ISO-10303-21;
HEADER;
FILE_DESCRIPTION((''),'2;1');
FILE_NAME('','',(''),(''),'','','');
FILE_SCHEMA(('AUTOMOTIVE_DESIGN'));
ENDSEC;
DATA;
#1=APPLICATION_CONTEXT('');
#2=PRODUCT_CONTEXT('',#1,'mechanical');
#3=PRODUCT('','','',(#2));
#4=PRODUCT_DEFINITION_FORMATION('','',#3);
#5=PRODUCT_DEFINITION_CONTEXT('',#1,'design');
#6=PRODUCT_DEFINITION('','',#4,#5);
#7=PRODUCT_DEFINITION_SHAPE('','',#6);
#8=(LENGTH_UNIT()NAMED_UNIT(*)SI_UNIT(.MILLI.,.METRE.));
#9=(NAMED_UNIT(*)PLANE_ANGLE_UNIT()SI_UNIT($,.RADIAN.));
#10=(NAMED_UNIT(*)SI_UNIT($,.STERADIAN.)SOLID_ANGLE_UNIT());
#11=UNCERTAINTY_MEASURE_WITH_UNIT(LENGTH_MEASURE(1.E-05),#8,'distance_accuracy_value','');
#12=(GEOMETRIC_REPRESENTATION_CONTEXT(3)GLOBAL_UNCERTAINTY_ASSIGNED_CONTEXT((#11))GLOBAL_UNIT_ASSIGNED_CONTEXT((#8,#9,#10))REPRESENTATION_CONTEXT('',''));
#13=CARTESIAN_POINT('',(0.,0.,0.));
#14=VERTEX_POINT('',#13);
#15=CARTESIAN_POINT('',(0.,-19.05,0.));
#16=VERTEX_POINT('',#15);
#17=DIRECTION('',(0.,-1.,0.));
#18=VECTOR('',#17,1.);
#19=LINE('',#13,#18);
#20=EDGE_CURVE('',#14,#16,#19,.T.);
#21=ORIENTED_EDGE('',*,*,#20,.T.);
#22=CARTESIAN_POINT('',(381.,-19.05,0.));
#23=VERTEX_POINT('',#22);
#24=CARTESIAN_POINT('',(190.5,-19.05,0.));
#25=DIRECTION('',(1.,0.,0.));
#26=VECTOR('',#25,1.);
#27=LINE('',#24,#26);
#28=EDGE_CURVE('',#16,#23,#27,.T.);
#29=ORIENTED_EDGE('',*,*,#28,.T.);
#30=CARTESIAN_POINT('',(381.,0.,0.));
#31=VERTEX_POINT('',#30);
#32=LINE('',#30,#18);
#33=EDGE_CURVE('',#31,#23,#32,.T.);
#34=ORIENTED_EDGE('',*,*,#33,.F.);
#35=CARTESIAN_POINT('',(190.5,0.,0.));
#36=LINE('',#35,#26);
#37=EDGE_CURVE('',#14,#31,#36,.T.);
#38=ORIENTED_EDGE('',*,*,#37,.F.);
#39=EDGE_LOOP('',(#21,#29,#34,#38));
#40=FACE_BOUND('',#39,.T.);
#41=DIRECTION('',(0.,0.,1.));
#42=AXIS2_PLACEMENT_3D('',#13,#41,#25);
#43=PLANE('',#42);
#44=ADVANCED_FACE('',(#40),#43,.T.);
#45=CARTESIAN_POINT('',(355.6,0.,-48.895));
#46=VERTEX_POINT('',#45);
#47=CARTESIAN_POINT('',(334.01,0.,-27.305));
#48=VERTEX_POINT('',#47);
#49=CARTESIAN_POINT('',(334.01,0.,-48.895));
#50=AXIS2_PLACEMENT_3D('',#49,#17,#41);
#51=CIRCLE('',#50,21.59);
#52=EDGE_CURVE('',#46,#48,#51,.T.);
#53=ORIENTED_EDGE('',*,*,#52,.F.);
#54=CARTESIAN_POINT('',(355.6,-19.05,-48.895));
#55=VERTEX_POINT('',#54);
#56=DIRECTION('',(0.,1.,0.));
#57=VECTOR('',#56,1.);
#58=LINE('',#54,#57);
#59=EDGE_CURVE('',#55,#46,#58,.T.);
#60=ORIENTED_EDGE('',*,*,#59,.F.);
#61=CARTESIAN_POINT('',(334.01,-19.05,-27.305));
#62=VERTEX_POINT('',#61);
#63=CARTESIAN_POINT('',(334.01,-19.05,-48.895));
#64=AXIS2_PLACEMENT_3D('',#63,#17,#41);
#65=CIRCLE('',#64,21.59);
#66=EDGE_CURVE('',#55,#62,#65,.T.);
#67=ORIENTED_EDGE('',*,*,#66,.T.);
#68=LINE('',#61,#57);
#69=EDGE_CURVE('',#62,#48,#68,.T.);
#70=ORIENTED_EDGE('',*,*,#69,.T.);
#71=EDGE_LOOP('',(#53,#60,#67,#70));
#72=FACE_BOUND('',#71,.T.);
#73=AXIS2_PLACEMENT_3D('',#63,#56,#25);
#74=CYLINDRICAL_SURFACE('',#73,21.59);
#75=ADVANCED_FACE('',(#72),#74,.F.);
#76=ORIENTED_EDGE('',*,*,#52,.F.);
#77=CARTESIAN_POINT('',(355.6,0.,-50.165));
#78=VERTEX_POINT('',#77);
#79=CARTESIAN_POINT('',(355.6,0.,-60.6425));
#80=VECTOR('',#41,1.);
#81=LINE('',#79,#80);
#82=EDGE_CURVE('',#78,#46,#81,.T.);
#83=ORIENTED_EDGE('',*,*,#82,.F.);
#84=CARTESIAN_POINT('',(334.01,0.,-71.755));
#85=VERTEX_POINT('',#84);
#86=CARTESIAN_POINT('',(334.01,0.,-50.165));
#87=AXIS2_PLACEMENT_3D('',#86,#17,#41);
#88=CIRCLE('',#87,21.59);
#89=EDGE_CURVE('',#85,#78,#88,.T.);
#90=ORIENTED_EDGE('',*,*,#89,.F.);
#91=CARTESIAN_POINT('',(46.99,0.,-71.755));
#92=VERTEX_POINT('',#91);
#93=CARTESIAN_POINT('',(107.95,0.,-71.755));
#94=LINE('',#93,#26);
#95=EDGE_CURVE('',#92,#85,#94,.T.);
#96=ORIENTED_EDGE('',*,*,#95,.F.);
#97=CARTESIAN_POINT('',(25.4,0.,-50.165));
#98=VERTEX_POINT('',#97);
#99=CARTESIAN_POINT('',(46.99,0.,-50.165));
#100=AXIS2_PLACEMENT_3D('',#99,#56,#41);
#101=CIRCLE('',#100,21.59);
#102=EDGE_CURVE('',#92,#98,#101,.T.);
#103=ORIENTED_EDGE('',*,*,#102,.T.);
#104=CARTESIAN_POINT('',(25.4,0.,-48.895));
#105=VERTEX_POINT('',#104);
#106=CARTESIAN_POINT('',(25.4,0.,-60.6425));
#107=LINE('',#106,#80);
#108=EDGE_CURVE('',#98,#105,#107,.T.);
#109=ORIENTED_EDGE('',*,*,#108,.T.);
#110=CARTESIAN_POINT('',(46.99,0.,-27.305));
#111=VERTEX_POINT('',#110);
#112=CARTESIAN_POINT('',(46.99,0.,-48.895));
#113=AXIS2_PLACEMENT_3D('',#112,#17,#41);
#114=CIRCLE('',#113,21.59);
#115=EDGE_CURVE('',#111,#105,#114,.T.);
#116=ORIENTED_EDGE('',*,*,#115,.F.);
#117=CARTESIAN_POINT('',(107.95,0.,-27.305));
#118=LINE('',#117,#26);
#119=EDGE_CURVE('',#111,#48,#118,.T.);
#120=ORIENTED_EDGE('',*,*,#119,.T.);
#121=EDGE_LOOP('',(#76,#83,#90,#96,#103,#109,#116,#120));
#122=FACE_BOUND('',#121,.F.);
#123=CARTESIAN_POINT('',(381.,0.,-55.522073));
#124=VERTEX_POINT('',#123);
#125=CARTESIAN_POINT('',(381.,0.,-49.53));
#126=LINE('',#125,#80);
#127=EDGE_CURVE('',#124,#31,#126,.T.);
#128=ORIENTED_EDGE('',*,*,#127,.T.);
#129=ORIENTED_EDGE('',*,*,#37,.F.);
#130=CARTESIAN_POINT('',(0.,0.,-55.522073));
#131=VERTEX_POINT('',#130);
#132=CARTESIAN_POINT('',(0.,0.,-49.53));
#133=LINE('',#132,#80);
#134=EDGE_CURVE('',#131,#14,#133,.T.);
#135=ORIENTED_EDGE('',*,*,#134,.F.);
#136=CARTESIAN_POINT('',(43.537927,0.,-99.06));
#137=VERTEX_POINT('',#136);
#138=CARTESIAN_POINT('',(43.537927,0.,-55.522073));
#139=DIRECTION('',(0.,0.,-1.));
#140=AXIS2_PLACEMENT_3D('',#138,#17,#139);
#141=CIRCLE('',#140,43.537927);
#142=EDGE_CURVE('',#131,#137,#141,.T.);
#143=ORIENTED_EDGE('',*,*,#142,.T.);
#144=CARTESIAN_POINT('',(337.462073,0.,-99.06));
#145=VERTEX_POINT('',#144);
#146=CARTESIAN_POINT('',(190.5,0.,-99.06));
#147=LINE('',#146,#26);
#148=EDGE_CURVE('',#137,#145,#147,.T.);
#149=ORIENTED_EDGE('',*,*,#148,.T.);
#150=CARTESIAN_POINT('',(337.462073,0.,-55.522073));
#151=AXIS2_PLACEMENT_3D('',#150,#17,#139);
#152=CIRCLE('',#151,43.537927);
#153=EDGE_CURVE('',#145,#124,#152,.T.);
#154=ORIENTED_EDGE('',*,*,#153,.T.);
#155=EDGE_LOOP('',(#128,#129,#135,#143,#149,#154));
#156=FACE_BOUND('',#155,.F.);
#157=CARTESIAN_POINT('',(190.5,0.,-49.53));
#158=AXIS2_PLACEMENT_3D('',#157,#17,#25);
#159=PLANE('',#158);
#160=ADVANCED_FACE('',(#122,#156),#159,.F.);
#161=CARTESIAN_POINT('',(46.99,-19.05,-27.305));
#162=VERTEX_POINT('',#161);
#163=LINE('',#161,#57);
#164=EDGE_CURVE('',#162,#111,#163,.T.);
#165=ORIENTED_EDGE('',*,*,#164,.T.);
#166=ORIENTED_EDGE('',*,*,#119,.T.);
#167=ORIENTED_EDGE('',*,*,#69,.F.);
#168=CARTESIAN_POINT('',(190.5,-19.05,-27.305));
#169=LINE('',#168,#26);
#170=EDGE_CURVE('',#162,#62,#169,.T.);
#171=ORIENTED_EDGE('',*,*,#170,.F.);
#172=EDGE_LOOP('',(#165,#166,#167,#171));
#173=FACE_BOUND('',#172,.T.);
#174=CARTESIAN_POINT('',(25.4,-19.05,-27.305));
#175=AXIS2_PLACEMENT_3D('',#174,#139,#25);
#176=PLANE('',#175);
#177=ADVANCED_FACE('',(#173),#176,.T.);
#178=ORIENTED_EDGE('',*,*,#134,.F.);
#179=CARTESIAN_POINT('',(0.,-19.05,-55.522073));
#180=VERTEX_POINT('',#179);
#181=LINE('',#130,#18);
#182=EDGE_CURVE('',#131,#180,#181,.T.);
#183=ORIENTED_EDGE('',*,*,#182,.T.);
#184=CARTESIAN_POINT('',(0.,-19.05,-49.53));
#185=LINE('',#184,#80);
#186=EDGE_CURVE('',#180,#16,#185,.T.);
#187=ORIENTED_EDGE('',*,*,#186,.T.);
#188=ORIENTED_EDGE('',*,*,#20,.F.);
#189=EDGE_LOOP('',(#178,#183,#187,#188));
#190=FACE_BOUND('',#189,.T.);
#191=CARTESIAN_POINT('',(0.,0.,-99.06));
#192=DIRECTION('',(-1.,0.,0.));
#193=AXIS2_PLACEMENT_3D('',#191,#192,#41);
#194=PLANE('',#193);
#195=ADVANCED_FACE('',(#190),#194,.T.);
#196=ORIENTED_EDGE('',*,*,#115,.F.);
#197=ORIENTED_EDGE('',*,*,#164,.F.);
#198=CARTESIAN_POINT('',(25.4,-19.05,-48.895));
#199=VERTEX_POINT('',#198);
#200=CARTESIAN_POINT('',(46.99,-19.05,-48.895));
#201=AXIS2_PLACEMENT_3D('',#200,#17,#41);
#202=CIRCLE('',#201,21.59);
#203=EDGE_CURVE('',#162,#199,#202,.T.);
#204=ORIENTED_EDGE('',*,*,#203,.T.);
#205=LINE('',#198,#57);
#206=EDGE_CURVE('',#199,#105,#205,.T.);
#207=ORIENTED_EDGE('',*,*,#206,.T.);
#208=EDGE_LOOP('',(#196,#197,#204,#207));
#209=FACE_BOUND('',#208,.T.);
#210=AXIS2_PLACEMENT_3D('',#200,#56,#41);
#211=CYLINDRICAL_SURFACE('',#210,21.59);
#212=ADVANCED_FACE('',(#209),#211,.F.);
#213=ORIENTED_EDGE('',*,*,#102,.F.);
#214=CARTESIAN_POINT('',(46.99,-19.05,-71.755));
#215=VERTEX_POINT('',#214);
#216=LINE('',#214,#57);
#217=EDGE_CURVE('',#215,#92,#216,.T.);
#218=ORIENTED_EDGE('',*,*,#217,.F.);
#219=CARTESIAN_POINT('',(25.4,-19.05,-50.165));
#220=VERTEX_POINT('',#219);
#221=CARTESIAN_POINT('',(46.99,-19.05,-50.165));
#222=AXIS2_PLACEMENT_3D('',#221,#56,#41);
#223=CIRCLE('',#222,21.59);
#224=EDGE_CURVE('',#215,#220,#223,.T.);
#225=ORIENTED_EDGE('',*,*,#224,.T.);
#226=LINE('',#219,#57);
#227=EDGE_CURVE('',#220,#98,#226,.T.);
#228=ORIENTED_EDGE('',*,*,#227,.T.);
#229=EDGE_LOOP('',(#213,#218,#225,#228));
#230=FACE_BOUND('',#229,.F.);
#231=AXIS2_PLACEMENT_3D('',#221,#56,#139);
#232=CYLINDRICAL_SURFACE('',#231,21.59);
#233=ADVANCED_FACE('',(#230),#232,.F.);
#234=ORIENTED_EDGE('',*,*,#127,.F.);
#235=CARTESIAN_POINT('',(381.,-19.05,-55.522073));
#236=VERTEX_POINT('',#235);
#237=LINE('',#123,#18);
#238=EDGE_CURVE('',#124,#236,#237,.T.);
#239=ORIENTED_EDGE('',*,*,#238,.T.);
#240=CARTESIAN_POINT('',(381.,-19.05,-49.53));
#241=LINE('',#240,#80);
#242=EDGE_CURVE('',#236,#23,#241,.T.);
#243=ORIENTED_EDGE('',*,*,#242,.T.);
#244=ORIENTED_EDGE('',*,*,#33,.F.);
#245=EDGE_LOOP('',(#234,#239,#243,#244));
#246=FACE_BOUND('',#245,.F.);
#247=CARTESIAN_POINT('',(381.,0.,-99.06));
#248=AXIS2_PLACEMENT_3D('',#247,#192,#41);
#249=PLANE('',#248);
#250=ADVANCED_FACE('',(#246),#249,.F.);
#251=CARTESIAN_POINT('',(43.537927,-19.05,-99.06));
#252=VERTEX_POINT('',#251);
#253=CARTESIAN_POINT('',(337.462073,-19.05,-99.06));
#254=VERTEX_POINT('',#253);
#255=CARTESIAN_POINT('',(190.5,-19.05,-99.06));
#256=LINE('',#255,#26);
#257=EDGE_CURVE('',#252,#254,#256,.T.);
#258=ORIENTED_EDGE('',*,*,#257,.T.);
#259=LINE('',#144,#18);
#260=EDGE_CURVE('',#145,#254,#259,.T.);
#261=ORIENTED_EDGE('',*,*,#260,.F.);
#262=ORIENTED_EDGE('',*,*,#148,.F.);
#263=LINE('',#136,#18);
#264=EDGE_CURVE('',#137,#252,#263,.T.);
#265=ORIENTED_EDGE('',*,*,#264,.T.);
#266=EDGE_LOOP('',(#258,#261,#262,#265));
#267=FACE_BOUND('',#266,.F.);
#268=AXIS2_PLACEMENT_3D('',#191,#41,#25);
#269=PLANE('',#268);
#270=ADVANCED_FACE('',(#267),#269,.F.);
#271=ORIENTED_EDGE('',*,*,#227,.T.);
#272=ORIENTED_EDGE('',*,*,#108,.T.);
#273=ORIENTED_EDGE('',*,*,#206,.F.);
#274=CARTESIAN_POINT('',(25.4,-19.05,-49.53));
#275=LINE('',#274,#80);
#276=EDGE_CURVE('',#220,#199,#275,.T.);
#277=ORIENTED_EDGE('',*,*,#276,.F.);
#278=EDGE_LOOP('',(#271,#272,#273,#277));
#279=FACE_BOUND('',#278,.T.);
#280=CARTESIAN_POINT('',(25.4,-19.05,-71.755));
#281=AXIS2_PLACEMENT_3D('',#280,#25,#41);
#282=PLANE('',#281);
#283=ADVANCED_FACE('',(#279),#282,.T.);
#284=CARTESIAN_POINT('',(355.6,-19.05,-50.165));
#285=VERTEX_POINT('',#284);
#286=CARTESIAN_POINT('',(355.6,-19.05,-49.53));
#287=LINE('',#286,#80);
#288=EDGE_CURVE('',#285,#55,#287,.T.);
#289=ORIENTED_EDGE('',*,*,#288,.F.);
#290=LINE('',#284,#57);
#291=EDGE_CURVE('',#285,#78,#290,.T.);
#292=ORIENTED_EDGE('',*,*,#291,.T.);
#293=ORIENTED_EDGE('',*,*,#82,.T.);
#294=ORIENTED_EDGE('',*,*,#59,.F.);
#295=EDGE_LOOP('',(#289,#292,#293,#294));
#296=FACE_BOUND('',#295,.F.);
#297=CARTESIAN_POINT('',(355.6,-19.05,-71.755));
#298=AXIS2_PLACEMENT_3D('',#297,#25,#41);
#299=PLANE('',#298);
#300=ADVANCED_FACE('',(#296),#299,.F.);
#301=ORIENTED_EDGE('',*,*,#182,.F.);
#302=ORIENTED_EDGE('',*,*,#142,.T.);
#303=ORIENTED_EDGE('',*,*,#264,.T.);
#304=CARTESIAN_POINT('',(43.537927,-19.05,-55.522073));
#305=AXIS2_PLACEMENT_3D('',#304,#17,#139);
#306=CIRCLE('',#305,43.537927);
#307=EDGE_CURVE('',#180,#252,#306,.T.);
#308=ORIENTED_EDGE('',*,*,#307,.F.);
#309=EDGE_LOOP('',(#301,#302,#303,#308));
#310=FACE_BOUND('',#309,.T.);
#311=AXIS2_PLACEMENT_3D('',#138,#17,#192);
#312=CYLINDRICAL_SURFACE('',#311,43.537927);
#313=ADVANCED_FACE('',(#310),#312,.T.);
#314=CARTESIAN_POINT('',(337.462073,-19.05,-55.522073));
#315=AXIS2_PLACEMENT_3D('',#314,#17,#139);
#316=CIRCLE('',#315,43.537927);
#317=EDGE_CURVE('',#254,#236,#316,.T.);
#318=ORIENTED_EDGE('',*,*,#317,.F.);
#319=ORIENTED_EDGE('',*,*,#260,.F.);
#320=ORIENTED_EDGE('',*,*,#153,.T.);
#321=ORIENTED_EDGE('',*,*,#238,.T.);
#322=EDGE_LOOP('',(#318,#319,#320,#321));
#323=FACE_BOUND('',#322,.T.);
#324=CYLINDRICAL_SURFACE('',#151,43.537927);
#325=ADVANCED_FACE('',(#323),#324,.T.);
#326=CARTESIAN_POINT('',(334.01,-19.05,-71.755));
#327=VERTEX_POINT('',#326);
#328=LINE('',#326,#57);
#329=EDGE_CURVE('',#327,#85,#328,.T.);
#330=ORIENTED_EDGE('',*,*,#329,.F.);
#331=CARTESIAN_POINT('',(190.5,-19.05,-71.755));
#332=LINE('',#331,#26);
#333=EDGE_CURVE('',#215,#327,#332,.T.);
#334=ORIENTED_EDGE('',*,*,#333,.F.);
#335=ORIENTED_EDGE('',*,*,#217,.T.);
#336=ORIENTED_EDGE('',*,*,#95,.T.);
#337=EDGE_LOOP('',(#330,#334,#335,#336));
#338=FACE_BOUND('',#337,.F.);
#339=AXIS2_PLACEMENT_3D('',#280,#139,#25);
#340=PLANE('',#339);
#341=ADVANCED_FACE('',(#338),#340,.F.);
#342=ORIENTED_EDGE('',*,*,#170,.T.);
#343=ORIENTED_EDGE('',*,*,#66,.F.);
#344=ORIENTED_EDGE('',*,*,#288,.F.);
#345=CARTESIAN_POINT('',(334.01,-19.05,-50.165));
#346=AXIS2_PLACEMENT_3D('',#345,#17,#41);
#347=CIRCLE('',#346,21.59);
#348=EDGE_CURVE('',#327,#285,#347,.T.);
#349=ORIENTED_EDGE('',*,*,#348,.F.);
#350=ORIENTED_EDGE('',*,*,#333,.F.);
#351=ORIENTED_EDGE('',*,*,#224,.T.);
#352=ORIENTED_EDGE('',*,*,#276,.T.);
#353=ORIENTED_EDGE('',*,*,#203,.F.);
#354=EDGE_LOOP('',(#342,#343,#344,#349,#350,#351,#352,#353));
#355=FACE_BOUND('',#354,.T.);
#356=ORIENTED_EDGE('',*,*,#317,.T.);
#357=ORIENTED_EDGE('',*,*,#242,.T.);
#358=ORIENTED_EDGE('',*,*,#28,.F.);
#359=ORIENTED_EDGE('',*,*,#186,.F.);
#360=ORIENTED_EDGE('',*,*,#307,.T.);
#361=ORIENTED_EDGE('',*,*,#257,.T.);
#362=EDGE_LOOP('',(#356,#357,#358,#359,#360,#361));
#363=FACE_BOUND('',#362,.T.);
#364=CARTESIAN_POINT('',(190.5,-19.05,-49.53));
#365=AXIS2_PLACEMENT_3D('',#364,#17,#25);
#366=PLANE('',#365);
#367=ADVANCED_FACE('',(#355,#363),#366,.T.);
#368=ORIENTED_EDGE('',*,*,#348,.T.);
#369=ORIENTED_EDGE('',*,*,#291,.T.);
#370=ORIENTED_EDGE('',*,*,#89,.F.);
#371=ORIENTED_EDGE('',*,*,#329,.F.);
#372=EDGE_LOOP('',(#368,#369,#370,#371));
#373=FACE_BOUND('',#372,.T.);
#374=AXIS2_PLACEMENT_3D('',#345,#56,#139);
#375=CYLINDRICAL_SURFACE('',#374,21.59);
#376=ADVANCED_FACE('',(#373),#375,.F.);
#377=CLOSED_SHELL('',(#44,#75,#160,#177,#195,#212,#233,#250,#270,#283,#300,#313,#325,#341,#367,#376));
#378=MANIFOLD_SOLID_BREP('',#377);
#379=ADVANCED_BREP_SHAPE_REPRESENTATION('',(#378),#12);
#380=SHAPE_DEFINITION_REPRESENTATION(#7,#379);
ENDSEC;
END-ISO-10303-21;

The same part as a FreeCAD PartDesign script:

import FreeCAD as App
import Part
import Sketcher

V = App.Vector
Q = App.Units.Quantity


def edges_at(feature, points):
    """Names of the edges that pass closest to the given points."""
    edges = feature.Shape.Edges
    near = lambda p: min(range(len(edges)), key=lambda i: edges[i].distToShape(Part.Vertex(*p))[0])
    return sorted({f"Edge{near(p) + 1}" for p in points})


def add_polygon(sketch, points):
    """Adds a closed chain of lines whose ends are joined by coincident constraints."""
    first, n = sketch.GeometryCount, len(points)
    for a, b in zip(points, points[1:] + points[:1]):
        sketch.addGeometry(Part.LineSegment(App.Vector(*a, 0), App.Vector(*b, 0)), False)
    for i in range(n):
        sketch.addConstraint(Sketcher.Constraint("Coincident", first + i, 2, first + (i + 1) % n, 1))

doc = App.newDocument("Part")
body = doc.addObject("PartDesign::Body", "Body")

# Sketch on XZ plane
sketch1 = body.newObject("Sketcher::SketchObject", "Sketch")
sketch1.AttachmentSupport = (doc.getObject("XZ_Plane"), [""])
sketch1.MapMode = "FlatFace"
add_polygon(sketch1, [(0, 0), (0, -99.06), (381, -99.06), (381, 0)])  # lines 0-3
sketch1.addConstraint([
    Sketcher.Constraint("Vertical", 0),
    Sketcher.Constraint("Horizontal", 1),
    Sketcher.Constraint("Vertical", 2),
    Sketcher.Constraint("Horizontal", 3),
    Sketcher.Constraint("Coincident", 3, 2, -1, 1),
    Sketcher.Constraint("DistanceX", 1, 1, 1, 2, Q("15 in")),
    Sketcher.Constraint("DistanceY", 0, 2, 0, 1, Q("3.9 in")),
])
pad1 = body.newObject("PartDesign::Pad", "Pad")
pad1.Profile = sketch1
pad1.Length = Q("0.75 in")
doc.recompute()

fillet = body.newObject("PartDesign::Fillet", "Fillet")
fillet.Base = (pad1, edges_at(pad1, [(0, -9.525, -99.06), (381, -9.525, -99.06)]))
fillet.Radius = 43.537927

# Sketch on XZ plane
sketch2 = body.newObject("Sketcher::SketchObject", "Sketch001")
sketch2.AttachmentSupport = (doc.getObject("XZ_Plane"), [""])
sketch2.MapMode = "FlatFace"
sketch2.AttachmentOffset = App.Placement(V(0, 0, 0.75 * 25.4), App.Rotation())
add_polygon(sketch2, [(25.4, -27.305), (25.4, -71.755), (355.6, -71.755), (355.6, -27.305)])  # lines 0-3
sketch2.addConstraint([
    Sketcher.Constraint("Vertical", 0),
    Sketcher.Constraint("Horizontal", 1),
    Sketcher.Constraint("Vertical", 2),
    Sketcher.Constraint("Horizontal", 3),
    Sketcher.Constraint("DistanceX", 1, 1, 1, 2, Q("13 in")),
    Sketcher.Constraint("DistanceX", -1, 1, 0, 2, Q("1 in")),
    Sketcher.Constraint("DistanceY", 0, 2, 0, 1, Q("1.75 in")),
    Sketcher.Constraint("DistanceY", 0, 2, -1, 1, Q("2.825 in")),
])
pocket1 = body.newObject("PartDesign::Pocket", "Pocket")
pocket1.Profile = sketch2
pocket1.Type = "ThroughAll"
doc.recompute()

fillet2 = body.newObject("PartDesign::Fillet", "Fillet001")
fillet2.Base = (pocket1, edges_at(pocket1, [
    (25.4, -9.525, -71.755),
    (25.4, -9.525, -27.305),
    (355.6, -9.525, -27.305),
    (355.6, -9.525, -71.755),
]))
fillet2.Radius = Q("0.85 in")

doc.recompute()
